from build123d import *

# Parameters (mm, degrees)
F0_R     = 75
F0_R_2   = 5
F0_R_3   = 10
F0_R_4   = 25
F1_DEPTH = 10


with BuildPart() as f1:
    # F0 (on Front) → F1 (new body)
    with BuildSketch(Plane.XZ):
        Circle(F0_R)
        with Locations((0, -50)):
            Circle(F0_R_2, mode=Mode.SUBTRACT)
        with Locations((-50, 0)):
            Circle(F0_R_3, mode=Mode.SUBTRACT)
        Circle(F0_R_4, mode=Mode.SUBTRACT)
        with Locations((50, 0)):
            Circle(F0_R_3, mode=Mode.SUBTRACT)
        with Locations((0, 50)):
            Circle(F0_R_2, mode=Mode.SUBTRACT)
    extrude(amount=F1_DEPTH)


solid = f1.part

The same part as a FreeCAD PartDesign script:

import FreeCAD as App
import Part
import Sketcher

doc = App.newDocument("Part")
body = doc.addObject("PartDesign::Body", "Body")

sketch1 = body.newObject("Sketcher::SketchObject", "Sketch")
sketch1.AttachmentSupport = (doc.getObject("XZ_Plane"), [""])
sketch1.MapMode = "FlatFace"
sketch1.addGeometry([
    Part.Circle(App.Vector(0, 0, 0), App.Vector(0, 0, 1), 75),
    Part.Circle(App.Vector(0, -50, 0), App.Vector(0, 0, 1), 5),
    Part.Circle(App.Vector(-50, 0, 0), App.Vector(0, 0, 1), 10),
    Part.Circle(App.Vector(0, 0, 0), App.Vector(0, 0, 1), 25),
    Part.Circle(App.Vector(50, 0, 0), App.Vector(0, 0, 1), 10),
    Part.Circle(App.Vector(0, 50, 0), App.Vector(0, 0, 1), 5),
], False)
sketch1.addConstraint([
    Sketcher.Constraint("Coincident", 0, 3, -1, 1),
    Sketcher.Constraint("Coincident", 3, 3, -1, 1),
    Sketcher.Constraint("Equal", 2, 4),
    Sketcher.Constraint("Equal", 1, 5),
    Sketcher.Constraint("Symmetric", 2, 3, 4, 3, -1, 1),
    Sketcher.Constraint("Symmetric", 1, 3, 5, 3, -1, 1),
    Sketcher.Constraint("PointOnObject", 1, 3, -2),
    Sketcher.Constraint("PointOnObject", 2, 3, -1),
    Sketcher.Constraint("Diameter", 0, 150.0),
    Sketcher.Constraint("Diameter", 1, 10.0),
    Sketcher.Constraint("Diameter", 2, 20.0),
    Sketcher.Constraint("Diameter", 3, 50.0),
    Sketcher.Constraint("DistanceY", 1, 3, -1, 1, 50.0),
    Sketcher.Constraint("DistanceX", 2, 3, -1, 1, 50.0),
])
pad1 = body.newObject("PartDesign::Pad", "Pad")
pad1.Profile = sketch1
pad1.Length = 10

doc.recompute()
